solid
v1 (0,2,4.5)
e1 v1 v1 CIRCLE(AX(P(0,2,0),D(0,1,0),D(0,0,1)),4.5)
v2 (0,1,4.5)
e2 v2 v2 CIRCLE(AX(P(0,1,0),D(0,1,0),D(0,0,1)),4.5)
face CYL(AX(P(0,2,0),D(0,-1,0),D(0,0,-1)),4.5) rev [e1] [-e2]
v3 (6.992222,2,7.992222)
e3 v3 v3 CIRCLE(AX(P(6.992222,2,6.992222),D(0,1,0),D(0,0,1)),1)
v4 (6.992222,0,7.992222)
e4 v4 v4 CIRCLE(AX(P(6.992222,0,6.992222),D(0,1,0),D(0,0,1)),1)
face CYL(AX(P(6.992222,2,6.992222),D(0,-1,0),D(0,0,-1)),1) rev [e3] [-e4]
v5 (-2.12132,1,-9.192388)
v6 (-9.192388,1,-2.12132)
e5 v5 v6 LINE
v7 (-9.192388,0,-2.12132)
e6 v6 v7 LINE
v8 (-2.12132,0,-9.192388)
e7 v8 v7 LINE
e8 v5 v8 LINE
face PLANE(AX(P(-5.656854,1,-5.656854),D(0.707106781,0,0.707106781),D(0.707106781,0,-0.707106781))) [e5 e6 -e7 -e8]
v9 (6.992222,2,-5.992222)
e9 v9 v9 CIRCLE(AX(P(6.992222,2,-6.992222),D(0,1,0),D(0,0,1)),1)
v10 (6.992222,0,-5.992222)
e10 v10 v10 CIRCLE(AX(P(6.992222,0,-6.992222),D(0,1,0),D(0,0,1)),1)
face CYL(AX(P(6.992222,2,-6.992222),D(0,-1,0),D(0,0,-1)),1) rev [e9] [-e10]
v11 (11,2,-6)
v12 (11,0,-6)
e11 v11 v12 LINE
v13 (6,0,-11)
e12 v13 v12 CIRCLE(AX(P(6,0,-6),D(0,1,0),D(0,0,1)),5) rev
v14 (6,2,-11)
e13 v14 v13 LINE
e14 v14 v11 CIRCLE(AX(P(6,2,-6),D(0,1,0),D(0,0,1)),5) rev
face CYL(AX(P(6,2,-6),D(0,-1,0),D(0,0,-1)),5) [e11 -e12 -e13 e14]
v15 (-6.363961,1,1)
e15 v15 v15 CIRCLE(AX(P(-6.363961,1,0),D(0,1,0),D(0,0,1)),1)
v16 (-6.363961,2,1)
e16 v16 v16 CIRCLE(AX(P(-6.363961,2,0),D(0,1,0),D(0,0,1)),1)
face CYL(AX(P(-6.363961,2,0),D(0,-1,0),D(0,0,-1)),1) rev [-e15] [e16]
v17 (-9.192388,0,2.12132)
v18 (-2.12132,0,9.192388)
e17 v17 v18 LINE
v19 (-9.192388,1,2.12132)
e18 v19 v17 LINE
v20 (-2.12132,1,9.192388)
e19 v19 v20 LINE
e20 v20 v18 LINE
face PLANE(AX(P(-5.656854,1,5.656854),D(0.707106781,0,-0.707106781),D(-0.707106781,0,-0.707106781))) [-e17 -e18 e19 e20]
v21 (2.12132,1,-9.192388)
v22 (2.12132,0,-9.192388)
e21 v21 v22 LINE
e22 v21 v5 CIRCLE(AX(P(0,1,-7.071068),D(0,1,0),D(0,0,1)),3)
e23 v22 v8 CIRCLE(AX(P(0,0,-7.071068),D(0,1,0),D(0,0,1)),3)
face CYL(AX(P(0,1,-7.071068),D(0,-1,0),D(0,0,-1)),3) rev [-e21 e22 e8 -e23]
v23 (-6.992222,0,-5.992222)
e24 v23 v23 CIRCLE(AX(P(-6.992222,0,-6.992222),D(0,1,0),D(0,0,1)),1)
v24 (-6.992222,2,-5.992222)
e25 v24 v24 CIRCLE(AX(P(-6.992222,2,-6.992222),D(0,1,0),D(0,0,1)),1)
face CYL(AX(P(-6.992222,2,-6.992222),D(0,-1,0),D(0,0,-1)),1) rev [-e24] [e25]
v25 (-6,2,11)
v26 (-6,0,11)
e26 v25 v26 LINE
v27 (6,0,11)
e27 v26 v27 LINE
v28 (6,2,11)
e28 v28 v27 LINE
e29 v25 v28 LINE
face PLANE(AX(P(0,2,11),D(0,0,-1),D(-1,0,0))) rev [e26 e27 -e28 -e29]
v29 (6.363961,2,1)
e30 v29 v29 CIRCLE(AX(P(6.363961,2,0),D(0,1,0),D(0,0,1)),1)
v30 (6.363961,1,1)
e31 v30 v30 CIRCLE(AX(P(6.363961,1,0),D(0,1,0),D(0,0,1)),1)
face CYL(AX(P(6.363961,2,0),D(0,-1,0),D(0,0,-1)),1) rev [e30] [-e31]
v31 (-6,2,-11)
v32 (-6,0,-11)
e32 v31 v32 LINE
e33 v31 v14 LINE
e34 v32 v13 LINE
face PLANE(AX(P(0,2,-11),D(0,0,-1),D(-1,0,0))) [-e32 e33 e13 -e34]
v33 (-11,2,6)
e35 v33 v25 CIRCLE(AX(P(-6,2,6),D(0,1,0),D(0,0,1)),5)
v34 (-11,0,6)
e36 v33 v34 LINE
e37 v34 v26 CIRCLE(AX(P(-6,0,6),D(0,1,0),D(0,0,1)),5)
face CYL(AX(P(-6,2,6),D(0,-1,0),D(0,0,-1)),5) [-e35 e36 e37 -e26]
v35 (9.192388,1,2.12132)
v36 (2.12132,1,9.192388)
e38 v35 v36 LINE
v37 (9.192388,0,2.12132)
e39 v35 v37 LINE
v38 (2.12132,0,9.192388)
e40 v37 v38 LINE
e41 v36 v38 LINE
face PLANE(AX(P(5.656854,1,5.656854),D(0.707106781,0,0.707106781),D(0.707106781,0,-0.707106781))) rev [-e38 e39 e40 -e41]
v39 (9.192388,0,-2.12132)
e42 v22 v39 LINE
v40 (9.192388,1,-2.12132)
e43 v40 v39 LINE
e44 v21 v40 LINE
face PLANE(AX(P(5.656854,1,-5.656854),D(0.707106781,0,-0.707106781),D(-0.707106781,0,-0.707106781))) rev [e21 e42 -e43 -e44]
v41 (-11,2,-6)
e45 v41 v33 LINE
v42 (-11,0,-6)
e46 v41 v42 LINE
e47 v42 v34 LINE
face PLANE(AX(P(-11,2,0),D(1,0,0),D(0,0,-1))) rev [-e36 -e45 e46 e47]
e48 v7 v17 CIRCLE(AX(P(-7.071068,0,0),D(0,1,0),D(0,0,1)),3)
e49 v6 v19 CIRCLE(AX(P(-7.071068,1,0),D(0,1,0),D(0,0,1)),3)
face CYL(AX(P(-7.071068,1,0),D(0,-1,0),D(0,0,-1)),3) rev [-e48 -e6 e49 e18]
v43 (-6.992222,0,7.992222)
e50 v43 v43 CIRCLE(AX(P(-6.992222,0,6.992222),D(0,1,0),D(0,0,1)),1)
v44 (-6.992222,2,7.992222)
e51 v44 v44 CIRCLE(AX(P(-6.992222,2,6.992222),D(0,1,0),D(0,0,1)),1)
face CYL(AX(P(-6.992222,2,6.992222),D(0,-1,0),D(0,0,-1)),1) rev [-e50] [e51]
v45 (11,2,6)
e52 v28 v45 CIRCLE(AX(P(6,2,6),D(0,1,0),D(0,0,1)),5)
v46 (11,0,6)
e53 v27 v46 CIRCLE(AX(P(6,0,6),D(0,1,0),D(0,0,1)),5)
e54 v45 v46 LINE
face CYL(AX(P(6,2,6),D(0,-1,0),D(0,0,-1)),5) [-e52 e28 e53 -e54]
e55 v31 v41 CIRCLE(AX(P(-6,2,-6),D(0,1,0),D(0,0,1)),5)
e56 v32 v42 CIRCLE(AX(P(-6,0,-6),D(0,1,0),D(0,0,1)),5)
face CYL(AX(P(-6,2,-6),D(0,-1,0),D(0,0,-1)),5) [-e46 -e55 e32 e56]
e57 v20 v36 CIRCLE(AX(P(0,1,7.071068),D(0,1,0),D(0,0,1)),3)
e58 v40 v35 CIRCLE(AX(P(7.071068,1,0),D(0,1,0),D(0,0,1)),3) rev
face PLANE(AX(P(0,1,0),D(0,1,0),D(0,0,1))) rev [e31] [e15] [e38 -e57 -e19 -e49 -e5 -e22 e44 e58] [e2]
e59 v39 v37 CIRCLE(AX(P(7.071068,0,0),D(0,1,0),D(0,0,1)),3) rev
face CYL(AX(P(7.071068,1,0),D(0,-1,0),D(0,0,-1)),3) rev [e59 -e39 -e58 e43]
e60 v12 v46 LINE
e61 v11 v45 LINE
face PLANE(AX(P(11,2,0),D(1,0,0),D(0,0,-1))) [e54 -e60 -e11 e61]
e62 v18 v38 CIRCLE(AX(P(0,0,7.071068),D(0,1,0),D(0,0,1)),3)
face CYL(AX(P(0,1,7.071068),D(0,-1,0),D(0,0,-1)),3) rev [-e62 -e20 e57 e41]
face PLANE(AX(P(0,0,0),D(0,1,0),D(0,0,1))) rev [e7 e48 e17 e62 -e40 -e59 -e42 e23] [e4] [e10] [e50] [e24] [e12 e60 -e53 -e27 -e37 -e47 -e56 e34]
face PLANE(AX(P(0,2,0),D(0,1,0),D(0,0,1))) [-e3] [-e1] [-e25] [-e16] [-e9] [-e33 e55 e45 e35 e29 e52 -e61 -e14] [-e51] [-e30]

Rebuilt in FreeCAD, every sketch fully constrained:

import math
import FreeCAD as App
import Part
import Sketcher

V = App.Vector

doc = App.newDocument("Part")
body = doc.addObject("PartDesign::Body", "Body")

sketch1 = doc.addObject("Sketcher::SketchObject", "Sketch")
body.addObject(sketch1)
sketch1.AttachmentSupport = (doc.XZ_Plane, [""])
sketch1.MapMode = "FlatFace"
sketch1.addGeometry([
    Part.LineSegment(V(6, -11, 0), V(-6, -11, 0)),
    Part.ArcOfCircle(Part.Circle(V(-6, -6, 0), V(0, 0, 1), 5), math.radians(180), math.radians(270)),
    Part.LineSegment(V(-11, -6, 0), V(-11, 6, 0)),
    Part.ArcOfCircle(Part.Circle(V(-6, 6, 0), V(0, 0, 1), 5), math.radians(90), math.radians(180)),
    Part.LineSegment(V(-6, 11, 0), V(6, 11, 0)),
    Part.ArcOfCircle(Part.Circle(V(6, 6, 0), V(0, 0, 1), 5), math.radians(0), math.radians(90)),
    Part.LineSegment(V(11, 6, 0), V(11, -6, 0)),
    Part.ArcOfCircle(Part.Circle(V(6, -6, 0), V(0, 0, 1), 5), math.radians(-90), math.radians(0)),
    Part.Circle(V(7, 7, 0), V(0, 0, 1), 1),
    Part.Circle(V(-7, 7, 0), V(0, 0, 1), 1),
    Part.Circle(V(6.4, 0, 0), V(0, 0, 1), 1),
    Part.Circle(V(7, -7, 0), V(0, 0, 1), 1),
    Part.Circle(V(0, 0, 0), V(0, 0, 1), 4.5),
    Part.Circle(V(-6.4, 0, 0), V(0, 0, 1), 1),
    Part.Circle(V(-7, -7, 0), V(0, 0, 1), 1),
], False)
sketch1.addConstraint([
    Sketcher.Constraint("Tangent", 0, 2, 1, 2),
    Sketcher.Constraint("Tangent", 1, 1, 2, 1),
    Sketcher.Constraint("Tangent", 2, 2, 3, 2),
    Sketcher.Constraint("Tangent", 3, 1, 4, 1),
    Sketcher.Constraint("Tangent", 4, 2, 5, 2),
    Sketcher.Constraint("Tangent", 5, 1, 6, 1),
    Sketcher.Constraint("Tangent", 6, 2, 7, 2),
    Sketcher.Constraint("Tangent", 7, 1, 0, 1),
    Sketcher.Constraint("Horizontal", 0),
    Sketcher.Constraint("Vertical", 2),
    Sketcher.Constraint("Horizontal", 4),
    Sketcher.Constraint("Vertical", 6),
    Sketcher.Constraint("Coincident", 12, 3, -1, 1),
    Sketcher.Constraint("Equal", 1, 3),
    Sketcher.Constraint("Equal", 3, 5),
    Sketcher.Constraint("Equal", 5, 7),
    Sketcher.Constraint("Equal", 8, 9),
    Sketcher.Constraint("Equal", 9, 10),
    Sketcher.Constraint("Equal", 10, 11),
    Sketcher.Constraint("Equal", 11, 13),
    Sketcher.Constraint("Equal", 13, 14),
    Sketcher.Constraint("Symmetric", 1, 3, 5, 3, -1, 1),
    Sketcher.Constraint("Symmetric", 9, 3, 11, 3, -1, 1),
    Sketcher.Constraint("Symmetric", 10, 3, 13, 3, -1, 1),
    Sketcher.Constraint("Symmetric", 8, 3, 14, 3, -1, 1),
    Sketcher.Constraint("Symmetric", 8, 3, 9, 3, -2),
    Sketcher.Constraint("PointOnObject", 10, 3, -1),
    Sketcher.Constraint("Equal", 4, 2),
    Sketcher.Constraint("Diameter", 8, 2.0),
    Sketcher.Constraint("Diameter", 12, 9.0),
    Sketcher.Constraint("Radius", 1, 5.0),
    Sketcher.Constraint("DistanceX", 0, 2, 0, 1, 12.0),
    Sketcher.Constraint("DistanceX", -1, 1, 8, 3, 6.992222),
    Sketcher.Constraint("DistanceY", -1, 1, 8, 3, 6.992222),
    Sketcher.Constraint("DistanceX", -1, 1, 10, 3, 6.363961),
])
pad1 = doc.addObject("PartDesign::Pad", "Pad")
body.addObject(pad1)
pad1.Profile = sketch1
pad1.Length = 2
pad1.Reversed = True

sketch2 = doc.addObject("Sketcher::SketchObject", "Sketch001")
body.addObject(sketch2)
sketch2.AttachmentSupport = (doc.XZ_Plane, [""])
sketch2.MapMode = "FlatFace"
sketch2.addGeometry([
    Part.LineSegment(V(9.2, -2.1, 0), V(2.1, -9.2, 0)),
    Part.ArcOfCircle(Part.Circle(V(0, -7.1, 0), V(0, 0, 1), 3), math.radians(-135), math.radians(-45)),
    Part.LineSegment(V(-2.1, -9.2, 0), V(-9.2, -2.1, 0)),
    Part.ArcOfCircle(Part.Circle(V(-7.1, 0, 0), V(0, 0, 1), 3), math.radians(135), math.radians(225)),
    Part.LineSegment(V(-9.2, 2.1, 0), V(-2.1, 9.2, 0)),
    Part.ArcOfCircle(Part.Circle(V(0, 7.1, 0), V(0, 0, 1), 3), math.radians(45), math.radians(135)),
    Part.LineSegment(V(2.1, 9.2, 0), V(9.2, 2.1, 0)),
    Part.ArcOfCircle(Part.Circle(V(7.1, 0, 0), V(0, 0, 1), 3), math.radians(-45), math.radians(45)),
    Part.Circle(V(0, 0, 0), V(0, 0, 1), 4.5),
], False)
sketch2.addConstraint([
    Sketcher.Constraint("Tangent", 0, 2, 1, 2),
    Sketcher.Constraint("Tangent", 1, 1, 2, 1),
    Sketcher.Constraint("Tangent", 2, 2, 3, 2),
    Sketcher.Constraint("Tangent", 3, 1, 4, 1),
    Sketcher.Constraint("Tangent", 4, 2, 5, 2),
    Sketcher.Constraint("Tangent", 5, 1, 6, 1),
    Sketcher.Constraint("Tangent", 6, 2, 7, 2),
    Sketcher.Constraint("Tangent", 7, 1, 0, 1),
    Sketcher.Constraint("Coincident", 8, 3, -1, 1),
    Sketcher.Constraint("Equal", 1, 3),
    Sketcher.Constraint("Equal", 3, 5),
    Sketcher.Constraint("Equal", 5, 7),
    Sketcher.Constraint("Symmetric", 1, 3, 5, 3, -1, 1),
    Sketcher.Constraint("Symmetric", 3, 3, 7, 3, -1, 1),
    Sketcher.Constraint("Symmetric", 0, 2, 1, 1, -2),
    Sketcher.Constraint("Perpendicular", 0, 2),
    Sketcher.Constraint("Diameter", 8, 9.0),
    Sketcher.Constraint("Radius", 1, 3.0),
    Sketcher.Constraint("Distance", 0, 10.0),
])
pocket1 = doc.addObject("PartDesign::Pocket", "Pocket")
body.addObject(pocket1)
pocket1.Profile = sketch2
pocket1.Length = 1

doc.recompute()
